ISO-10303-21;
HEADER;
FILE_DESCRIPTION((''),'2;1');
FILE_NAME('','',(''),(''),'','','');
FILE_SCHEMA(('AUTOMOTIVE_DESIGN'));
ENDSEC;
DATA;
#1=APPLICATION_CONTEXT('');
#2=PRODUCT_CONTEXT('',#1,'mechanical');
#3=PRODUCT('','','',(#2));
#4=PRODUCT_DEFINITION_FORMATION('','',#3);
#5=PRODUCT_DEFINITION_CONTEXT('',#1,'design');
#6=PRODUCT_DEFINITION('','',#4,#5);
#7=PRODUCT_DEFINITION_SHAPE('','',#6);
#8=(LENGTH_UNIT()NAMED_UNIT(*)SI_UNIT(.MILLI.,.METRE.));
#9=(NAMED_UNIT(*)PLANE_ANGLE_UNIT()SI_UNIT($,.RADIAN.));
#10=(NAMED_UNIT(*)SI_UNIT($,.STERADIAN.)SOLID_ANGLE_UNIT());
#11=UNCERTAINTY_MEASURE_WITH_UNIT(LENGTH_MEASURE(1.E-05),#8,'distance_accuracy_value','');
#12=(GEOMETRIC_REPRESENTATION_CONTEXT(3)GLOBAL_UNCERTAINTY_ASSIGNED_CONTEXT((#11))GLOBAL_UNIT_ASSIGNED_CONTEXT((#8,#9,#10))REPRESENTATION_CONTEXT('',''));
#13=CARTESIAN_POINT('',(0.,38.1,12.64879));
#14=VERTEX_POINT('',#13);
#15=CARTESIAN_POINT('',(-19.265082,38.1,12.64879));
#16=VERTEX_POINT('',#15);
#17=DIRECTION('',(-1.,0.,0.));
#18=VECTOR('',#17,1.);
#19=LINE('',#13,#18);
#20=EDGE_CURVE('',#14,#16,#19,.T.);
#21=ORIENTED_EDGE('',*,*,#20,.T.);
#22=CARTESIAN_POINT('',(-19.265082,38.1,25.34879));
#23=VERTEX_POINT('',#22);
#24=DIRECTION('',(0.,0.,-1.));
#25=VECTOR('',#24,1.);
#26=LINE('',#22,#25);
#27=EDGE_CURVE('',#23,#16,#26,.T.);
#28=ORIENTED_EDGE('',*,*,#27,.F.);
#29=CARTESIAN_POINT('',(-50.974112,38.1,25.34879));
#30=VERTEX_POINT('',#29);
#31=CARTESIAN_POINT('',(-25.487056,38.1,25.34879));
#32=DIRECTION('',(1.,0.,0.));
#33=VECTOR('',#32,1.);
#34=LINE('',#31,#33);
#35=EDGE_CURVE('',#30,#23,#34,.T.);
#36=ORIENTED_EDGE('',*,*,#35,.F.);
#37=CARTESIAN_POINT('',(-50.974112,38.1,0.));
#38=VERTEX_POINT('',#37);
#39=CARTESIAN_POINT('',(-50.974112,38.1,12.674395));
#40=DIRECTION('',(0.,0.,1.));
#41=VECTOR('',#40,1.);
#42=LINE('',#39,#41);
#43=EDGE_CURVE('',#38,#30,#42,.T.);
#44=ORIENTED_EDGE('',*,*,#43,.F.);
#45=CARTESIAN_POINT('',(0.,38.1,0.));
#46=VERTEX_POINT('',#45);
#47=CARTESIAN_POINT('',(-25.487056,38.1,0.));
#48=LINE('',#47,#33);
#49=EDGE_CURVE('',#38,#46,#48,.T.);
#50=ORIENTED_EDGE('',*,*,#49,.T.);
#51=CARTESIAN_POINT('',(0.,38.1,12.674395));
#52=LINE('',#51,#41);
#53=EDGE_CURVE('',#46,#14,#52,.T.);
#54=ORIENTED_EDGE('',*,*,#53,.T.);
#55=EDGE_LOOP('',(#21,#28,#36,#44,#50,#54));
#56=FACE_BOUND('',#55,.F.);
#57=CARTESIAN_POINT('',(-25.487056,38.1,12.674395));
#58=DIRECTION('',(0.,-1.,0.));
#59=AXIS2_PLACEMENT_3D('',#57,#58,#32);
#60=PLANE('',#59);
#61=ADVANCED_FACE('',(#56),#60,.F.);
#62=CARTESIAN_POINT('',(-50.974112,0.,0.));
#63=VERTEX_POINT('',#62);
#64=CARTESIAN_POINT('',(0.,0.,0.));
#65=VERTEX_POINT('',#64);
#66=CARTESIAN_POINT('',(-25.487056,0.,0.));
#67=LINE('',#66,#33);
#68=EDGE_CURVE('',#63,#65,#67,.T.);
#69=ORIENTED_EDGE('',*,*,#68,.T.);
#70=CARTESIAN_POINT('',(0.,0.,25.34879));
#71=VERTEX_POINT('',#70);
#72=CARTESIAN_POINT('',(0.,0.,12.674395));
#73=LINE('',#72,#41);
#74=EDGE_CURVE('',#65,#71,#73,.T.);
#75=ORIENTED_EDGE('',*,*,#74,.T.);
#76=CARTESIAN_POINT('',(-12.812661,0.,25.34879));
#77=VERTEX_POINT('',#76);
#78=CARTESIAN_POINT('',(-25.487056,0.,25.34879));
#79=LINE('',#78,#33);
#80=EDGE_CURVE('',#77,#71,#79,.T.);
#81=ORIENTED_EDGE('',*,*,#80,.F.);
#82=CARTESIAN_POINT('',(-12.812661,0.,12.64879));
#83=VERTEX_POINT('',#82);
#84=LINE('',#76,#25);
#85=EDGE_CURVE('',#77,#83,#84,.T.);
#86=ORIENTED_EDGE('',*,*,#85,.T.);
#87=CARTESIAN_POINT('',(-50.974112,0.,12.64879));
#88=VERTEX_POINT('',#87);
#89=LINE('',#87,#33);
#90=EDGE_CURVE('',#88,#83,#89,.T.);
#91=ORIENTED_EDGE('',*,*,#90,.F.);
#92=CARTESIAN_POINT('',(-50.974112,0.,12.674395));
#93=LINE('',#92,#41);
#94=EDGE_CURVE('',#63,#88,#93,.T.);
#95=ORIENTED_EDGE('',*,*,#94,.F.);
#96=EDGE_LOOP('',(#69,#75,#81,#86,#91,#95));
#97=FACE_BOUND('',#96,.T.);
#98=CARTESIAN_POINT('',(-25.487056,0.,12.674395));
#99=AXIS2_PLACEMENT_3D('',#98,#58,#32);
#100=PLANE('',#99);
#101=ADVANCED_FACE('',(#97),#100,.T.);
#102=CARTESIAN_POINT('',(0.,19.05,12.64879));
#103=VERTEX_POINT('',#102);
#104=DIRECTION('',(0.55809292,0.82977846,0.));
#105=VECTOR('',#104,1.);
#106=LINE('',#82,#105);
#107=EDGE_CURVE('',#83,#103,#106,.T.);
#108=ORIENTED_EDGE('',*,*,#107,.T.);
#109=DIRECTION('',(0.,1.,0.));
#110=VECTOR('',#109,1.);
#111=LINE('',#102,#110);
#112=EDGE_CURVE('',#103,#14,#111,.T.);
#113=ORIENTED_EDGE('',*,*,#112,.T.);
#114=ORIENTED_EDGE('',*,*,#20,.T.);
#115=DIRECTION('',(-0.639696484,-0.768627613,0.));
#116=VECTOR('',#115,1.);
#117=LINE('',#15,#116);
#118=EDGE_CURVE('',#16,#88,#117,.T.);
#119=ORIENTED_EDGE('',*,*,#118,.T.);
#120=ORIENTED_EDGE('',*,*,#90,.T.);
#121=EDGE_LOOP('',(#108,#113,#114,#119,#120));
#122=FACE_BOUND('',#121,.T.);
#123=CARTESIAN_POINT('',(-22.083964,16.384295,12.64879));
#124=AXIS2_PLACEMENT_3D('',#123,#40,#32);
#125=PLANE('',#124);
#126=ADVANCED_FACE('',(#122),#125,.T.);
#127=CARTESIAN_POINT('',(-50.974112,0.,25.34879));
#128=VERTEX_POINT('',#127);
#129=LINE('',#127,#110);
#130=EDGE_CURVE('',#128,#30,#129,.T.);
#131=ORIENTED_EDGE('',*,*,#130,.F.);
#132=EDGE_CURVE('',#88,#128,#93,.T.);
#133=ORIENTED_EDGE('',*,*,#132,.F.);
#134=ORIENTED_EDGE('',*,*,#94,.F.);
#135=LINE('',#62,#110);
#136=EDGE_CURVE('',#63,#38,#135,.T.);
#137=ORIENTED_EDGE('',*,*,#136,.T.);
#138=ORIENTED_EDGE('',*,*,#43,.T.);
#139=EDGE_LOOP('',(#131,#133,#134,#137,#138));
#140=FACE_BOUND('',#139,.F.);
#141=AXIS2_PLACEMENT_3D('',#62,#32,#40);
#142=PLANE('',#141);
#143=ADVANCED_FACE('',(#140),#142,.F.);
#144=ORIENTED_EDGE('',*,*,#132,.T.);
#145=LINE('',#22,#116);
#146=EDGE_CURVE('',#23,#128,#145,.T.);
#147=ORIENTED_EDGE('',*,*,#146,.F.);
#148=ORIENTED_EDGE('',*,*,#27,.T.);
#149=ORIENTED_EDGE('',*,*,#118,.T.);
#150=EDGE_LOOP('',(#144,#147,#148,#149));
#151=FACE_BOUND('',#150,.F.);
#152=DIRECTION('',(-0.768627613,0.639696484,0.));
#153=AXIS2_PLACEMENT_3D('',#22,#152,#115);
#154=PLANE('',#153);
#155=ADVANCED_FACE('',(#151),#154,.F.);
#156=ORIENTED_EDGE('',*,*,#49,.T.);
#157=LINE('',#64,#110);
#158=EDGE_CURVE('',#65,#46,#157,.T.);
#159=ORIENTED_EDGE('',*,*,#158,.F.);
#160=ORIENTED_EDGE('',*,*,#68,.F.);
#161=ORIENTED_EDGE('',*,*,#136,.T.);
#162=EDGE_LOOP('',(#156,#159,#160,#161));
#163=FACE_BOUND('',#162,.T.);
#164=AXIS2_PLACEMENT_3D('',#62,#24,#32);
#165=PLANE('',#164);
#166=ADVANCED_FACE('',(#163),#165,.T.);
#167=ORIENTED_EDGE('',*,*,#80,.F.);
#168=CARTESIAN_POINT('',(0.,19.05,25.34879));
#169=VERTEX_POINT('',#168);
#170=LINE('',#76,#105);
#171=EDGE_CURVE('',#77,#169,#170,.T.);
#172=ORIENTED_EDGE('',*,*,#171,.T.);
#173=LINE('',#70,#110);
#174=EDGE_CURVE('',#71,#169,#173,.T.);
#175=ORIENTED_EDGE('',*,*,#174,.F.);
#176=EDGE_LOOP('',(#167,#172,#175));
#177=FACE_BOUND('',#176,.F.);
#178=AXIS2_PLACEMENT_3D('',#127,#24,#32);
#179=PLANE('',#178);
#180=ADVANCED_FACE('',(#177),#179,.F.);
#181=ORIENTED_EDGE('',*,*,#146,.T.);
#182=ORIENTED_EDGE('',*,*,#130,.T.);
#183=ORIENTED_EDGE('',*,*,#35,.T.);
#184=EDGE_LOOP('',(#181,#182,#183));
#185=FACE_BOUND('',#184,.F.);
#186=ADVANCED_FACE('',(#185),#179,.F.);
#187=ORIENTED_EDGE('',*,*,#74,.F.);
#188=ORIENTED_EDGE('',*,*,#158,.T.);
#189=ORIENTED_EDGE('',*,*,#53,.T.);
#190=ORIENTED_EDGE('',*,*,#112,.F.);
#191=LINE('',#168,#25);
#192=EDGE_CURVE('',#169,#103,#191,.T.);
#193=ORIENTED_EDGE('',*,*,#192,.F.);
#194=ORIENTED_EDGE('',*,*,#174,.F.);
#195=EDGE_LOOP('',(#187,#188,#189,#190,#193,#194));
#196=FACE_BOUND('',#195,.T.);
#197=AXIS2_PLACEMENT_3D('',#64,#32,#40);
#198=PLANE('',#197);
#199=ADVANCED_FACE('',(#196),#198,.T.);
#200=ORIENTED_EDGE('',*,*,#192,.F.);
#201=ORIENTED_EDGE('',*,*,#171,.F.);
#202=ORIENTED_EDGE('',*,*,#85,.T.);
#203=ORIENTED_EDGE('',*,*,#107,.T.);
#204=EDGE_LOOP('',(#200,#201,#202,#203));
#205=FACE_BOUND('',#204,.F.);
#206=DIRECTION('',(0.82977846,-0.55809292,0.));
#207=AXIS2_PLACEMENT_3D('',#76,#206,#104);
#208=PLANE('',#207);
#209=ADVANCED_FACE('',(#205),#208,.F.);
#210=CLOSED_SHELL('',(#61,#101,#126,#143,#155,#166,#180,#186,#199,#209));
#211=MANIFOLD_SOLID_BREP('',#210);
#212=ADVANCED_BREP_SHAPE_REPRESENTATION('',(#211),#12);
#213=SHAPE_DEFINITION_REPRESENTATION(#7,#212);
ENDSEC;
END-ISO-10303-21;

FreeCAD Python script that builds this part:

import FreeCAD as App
import Part
import Sketcher
Q = App.Units.Quantity


def add_polygon(sketch, points):
    """Adds a closed chain of lines whose ends are joined by coincident constraints."""
    first, n = sketch.GeometryCount, len(points)
    for a, b in zip(points, points[1:] + points[:1]):
        sketch.addGeometry(Part.LineSegment(App.Vector(*a, 0), App.Vector(*b, 0)), False)
    for i in range(n):
        sketch.addConstraint(Sketcher.Constraint("Coincident", first + i, 2, first + (i + 1) % n, 1))

doc = App.newDocument("Part")
body = doc.addObject("PartDesign::Body", "Body")

# Sketch on XZ plane
sketch1 = doc.addObject("Sketcher::SketchObject", "Sketch")
body.addObject(sketch1)
sketch1.AttachmentSupport = (doc.XZ_Plane, [""])
sketch1.MapMode = "FlatFace"
add_polygon(sketch1, [(-51, 25), (-51, 0), (0, 0), (0, 25)])  # lines 0-3
sketch1.addConstraint([
    Sketcher.Constraint("Vertical", 0),
    Sketcher.Constraint("Horizontal", 1),
    Sketcher.Constraint("Vertical", 2),
    Sketcher.Constraint("Horizontal", 3),
    Sketcher.Constraint("Coincident", 1, 2, -1, 1),
    Sketcher.Constraint("DistanceX", 1, 1, 1, 2, Q("50.974112 mm")),
    Sketcher.Constraint("DistanceY", 0, 2, 0, 1, Q("25.34879 mm")),
])
pad1 = doc.addObject("PartDesign::Pad", "Pad")
body.addObject(pad1)
pad1.Profile = sketch1
pad1.Length = Q("1.5 in")
pad1.Reversed = True

# Sketch on XY plane
sketch2 = doc.addObject("Sketcher::SketchObject", "Sketch001")
body.addObject(sketch2)
sketch2.AttachmentSupport = (doc.XY_Plane, [""])
sketch2.MapMode = "FlatFace"
sketch2.AttachmentOffset = App.Placement(App.Vector(0, 0, 25.34879), App.Rotation())
add_polygon(sketch2, [(-51, 0), (-13, 0), (0, 19), (0, 38), (-19, 38)])  # lines 0-4
sketch2.addConstraint([
    Sketcher.Constraint("Horizontal", 0),
    Sketcher.Constraint("Vertical", 2),
    Sketcher.Constraint("Horizontal", 3),
    Sketcher.Constraint("PointOnObject", 0, 2, -1),
    Sketcher.Constraint("PointOnObject", 1, 2, -2),
    Sketcher.Constraint("DistanceY", 2, 1, 2, 2, Q("0.75 in")),
    Sketcher.Constraint("DistanceY", -1, 1, 2, 2, Q("1.5 in")),
    Sketcher.Constraint("DistanceX", 0, 1, 0, 2, Q("38.161451 mm")),
    Sketcher.Constraint("DistanceX", 3, 2, 3, 1, Q("19.265082 mm")),
    Sketcher.Constraint("DistanceX", 0, 2, -1, 1, Q("12.812661 mm")),
])
pocket1 = doc.addObject("PartDesign::Pocket", "Pocket")
body.addObject(pocket1)
pocket1.Profile = sketch2
pocket1.Length = Q("0.5 in")

doc.recompute()
